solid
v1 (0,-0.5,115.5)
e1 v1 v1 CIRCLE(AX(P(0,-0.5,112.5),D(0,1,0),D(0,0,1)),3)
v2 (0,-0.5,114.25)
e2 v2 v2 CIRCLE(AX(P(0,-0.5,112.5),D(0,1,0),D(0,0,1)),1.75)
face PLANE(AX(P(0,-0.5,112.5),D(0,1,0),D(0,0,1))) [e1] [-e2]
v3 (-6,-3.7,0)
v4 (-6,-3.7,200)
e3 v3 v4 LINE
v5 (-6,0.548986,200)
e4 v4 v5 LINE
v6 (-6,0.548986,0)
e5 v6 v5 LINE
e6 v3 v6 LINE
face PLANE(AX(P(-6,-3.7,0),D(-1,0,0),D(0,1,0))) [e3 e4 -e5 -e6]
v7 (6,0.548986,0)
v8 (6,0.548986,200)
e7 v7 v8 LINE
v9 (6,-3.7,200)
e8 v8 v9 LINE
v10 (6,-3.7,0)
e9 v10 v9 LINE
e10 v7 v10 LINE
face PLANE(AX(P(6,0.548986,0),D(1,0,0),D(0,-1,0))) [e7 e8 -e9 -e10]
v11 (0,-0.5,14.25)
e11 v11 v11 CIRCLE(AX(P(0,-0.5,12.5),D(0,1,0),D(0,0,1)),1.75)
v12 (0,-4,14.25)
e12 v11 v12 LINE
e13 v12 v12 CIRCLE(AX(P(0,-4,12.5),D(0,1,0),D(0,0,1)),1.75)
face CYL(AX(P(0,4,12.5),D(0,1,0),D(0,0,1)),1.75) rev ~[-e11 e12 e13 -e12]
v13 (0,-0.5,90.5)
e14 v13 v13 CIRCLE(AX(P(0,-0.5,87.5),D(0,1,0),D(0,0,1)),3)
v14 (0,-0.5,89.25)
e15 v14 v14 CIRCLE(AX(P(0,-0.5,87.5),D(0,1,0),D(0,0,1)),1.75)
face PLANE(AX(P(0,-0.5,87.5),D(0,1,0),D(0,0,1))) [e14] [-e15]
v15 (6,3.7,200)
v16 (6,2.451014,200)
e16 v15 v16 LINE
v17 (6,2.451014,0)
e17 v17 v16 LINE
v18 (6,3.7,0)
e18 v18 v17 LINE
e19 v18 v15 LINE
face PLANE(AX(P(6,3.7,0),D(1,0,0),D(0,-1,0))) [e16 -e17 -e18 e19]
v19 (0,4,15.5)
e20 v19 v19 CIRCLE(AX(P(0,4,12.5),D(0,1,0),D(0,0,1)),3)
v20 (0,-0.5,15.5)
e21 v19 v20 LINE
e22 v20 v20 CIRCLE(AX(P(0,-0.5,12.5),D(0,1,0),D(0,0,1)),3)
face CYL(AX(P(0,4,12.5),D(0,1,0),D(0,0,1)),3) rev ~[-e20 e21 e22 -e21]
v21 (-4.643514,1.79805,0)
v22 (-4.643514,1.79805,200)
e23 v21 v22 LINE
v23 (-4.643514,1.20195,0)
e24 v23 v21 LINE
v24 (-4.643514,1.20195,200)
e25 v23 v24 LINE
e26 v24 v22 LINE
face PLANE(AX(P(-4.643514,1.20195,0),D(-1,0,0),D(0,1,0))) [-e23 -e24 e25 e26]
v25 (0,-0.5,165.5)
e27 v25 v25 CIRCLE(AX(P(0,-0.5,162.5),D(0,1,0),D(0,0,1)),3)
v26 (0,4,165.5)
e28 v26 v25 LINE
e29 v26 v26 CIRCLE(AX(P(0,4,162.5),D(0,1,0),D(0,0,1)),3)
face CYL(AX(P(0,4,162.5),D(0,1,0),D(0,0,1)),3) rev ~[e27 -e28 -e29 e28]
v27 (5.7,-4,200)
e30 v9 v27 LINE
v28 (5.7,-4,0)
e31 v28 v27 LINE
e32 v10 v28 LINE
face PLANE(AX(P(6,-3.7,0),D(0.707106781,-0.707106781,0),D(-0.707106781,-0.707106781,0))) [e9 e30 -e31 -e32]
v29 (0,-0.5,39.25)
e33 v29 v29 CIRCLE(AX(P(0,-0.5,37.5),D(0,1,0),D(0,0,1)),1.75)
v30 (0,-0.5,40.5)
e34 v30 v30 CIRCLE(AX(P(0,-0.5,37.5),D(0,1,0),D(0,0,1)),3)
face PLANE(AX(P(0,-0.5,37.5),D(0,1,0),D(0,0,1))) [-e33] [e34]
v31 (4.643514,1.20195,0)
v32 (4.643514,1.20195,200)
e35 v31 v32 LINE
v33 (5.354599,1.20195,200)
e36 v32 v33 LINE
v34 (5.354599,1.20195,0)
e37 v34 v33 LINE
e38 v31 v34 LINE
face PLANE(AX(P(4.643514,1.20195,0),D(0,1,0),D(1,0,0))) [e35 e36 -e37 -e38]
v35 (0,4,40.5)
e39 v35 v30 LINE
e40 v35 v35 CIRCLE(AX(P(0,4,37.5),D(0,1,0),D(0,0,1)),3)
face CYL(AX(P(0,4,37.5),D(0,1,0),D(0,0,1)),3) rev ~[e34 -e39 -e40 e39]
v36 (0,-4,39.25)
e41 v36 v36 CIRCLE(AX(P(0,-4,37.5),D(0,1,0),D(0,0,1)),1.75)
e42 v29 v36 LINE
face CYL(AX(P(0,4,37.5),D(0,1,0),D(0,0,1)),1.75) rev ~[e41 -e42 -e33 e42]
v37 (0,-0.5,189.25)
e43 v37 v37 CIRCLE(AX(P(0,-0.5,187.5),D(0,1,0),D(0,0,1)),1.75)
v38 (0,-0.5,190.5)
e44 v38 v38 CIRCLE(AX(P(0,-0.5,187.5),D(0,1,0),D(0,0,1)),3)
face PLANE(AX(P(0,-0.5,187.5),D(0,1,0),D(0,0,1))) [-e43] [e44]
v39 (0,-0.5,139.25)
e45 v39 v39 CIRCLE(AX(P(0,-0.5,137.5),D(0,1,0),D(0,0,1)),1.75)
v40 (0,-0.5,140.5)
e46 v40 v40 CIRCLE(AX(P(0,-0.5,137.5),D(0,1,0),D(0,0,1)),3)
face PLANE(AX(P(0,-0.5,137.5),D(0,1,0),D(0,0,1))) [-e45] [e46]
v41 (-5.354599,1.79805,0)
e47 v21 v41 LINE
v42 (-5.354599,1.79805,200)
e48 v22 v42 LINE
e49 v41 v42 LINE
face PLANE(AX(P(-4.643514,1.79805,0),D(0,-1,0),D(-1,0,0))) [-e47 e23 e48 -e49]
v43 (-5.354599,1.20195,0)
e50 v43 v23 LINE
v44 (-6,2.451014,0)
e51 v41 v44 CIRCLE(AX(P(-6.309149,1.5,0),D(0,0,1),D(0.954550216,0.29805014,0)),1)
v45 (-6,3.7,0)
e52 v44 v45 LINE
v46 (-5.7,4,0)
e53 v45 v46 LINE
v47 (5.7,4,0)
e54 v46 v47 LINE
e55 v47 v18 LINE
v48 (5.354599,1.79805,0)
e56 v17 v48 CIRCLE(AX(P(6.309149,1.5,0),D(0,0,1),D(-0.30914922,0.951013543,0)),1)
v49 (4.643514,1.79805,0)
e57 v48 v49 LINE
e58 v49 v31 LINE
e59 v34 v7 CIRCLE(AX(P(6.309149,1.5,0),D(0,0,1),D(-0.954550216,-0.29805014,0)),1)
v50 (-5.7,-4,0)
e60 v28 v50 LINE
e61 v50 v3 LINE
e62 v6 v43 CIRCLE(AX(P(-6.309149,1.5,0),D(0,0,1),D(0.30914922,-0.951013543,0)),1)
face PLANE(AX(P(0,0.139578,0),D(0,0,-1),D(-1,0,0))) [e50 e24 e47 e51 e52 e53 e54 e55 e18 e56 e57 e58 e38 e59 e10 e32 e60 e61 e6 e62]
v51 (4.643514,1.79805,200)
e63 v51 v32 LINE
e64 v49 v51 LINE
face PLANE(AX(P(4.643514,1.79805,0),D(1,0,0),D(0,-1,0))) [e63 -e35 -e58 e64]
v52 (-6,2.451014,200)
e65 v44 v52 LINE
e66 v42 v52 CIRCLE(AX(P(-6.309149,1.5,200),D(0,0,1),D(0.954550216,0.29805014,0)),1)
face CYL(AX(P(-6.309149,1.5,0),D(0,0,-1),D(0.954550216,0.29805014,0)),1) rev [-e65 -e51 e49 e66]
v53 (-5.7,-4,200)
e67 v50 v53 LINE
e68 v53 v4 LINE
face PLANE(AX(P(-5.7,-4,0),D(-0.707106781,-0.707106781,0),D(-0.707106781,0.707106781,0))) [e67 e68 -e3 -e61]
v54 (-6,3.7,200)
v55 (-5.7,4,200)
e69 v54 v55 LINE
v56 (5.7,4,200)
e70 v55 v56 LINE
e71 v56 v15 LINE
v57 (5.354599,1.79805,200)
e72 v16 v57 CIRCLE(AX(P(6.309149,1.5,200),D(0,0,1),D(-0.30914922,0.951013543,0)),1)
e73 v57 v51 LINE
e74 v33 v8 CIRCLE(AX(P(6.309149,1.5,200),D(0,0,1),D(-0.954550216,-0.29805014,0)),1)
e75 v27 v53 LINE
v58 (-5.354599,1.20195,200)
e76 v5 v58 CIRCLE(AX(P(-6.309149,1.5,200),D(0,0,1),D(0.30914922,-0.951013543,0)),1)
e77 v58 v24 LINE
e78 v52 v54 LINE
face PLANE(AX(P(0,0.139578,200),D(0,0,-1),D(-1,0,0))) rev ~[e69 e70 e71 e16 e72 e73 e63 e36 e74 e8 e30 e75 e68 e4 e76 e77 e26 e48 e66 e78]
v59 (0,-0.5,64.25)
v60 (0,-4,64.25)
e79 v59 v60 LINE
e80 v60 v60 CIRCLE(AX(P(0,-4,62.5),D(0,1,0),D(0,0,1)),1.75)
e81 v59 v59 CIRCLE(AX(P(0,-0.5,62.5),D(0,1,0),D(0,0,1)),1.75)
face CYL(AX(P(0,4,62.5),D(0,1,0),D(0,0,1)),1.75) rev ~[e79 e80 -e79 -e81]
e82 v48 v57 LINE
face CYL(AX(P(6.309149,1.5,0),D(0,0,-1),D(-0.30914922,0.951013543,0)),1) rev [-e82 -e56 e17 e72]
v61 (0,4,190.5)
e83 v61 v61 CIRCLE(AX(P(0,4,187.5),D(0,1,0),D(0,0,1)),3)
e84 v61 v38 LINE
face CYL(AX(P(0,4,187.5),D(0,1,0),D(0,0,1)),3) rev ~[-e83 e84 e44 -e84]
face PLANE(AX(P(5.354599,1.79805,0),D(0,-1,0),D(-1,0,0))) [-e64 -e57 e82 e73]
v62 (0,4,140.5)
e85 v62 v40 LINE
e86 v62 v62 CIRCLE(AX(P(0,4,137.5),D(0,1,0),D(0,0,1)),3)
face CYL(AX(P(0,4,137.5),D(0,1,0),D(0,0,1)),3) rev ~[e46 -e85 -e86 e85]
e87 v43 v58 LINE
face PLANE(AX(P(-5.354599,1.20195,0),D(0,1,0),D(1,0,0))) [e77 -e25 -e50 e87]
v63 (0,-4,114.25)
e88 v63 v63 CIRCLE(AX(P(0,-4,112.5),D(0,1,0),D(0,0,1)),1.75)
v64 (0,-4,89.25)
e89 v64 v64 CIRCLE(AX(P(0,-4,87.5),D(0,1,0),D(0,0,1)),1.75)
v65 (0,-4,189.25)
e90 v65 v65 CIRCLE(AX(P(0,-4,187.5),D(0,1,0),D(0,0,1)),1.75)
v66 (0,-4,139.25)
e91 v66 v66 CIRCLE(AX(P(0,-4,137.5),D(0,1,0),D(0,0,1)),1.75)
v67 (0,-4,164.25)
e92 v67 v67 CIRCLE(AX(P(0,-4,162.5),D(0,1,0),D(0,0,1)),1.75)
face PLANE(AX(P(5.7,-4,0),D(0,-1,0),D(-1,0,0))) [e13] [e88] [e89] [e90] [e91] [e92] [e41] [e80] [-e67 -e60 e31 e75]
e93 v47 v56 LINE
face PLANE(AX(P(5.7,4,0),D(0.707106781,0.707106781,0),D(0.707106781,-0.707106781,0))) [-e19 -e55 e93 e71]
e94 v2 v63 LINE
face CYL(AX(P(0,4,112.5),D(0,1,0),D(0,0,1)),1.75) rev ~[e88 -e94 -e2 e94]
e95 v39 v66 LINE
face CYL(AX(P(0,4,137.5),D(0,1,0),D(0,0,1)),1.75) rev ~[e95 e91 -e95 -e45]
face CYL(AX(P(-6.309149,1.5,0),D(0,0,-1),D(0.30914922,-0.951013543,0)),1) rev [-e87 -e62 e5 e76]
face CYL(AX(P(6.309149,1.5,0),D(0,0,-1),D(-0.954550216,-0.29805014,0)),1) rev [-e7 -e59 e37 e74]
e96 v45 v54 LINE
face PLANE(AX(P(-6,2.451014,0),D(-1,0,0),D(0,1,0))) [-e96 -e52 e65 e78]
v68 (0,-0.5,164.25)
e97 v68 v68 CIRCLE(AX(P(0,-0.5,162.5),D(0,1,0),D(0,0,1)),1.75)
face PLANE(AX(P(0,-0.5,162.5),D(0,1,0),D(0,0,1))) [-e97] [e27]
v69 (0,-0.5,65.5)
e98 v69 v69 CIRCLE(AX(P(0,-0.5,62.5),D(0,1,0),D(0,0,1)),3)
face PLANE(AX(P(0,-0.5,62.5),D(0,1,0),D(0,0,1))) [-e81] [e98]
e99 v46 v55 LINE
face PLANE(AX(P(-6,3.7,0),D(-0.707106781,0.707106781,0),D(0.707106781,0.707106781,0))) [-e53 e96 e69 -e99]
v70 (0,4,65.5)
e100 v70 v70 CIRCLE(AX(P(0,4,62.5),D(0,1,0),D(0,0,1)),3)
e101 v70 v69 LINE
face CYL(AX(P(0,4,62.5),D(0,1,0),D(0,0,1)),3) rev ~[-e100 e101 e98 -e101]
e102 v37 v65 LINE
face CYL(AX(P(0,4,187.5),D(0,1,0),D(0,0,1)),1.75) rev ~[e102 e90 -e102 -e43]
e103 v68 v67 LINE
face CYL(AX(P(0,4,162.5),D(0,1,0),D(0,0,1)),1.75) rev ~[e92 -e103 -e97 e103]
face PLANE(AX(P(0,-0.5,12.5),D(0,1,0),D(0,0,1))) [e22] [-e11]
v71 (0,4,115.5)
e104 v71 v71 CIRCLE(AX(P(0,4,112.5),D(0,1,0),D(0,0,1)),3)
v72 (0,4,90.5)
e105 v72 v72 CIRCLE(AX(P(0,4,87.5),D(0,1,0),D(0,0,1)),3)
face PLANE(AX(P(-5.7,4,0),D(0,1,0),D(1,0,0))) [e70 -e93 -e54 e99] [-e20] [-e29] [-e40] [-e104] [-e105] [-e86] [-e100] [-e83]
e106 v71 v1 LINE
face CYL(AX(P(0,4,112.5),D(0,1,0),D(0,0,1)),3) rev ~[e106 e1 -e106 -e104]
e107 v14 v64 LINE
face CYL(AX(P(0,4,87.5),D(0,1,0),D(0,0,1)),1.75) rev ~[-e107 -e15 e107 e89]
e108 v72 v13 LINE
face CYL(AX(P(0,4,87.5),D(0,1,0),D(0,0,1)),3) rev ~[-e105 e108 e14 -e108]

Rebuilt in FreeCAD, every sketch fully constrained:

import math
import FreeCAD as App
import Part
import Sketcher

V = App.Vector
Q = App.Units.Quantity

doc = App.newDocument("Part")
body = doc.addObject("PartDesign::Body", "Body")

sketch1 = doc.addObject("Sketcher::SketchObject", "Sketch")
body.addObject(sketch1)
sketch1.AttachmentSupport = (doc.XY_Plane, [""])
sketch1.MapMode = "FlatFace"
sketch1.addGeometry([
    Part.LineSegment(V(-5.7, 4, 0), V(-6, 3.7, 0)),
    Part.LineSegment(V(-6, 3.7, 0), V(-6, 2.45, 0)),
    Part.ArcOfCircle(Part.Circle(V(-6.31, 1.5, 0), V(0, 0, 1), 1), math.radians(17), math.radians(72)),
    Part.LineSegment(V(-5.35, 1.8, 0), V(-4.64, 1.8, 0)),
    Part.LineSegment(V(-4.64, 1.8, 0), V(-4.64, 1.2, 0)),
    Part.LineSegment(V(-4.64, 1.2, 0), V(-5.35, 1.2, 0)),
    Part.ArcOfCircle(Part.Circle(V(-6.31, 1.5, 0), V(0, 0, 1), 1), math.radians(-72), math.radians(-17)),
    Part.LineSegment(V(-6, 0.55, 0), V(-6, -3.7, 0)),
    Part.LineSegment(V(-6, -3.7, 0), V(-5.7, -4, 0)),
    Part.LineSegment(V(-5.7, -4, 0), V(5.7, -4, 0)),
    Part.LineSegment(V(5.7, -4, 0), V(6, -3.7, 0)),
    Part.LineSegment(V(6, -3.7, 0), V(6, 0.55, 0)),
    Part.ArcOfCircle(Part.Circle(V(6.31, 1.5, 0), V(0, 0, 1), 1), math.radians(-163), math.radians(-108)),
    Part.LineSegment(V(5.35, 1.2, 0), V(4.64, 1.2, 0)),
    Part.LineSegment(V(4.64, 1.2, 0), V(4.64, 1.8, 0)),
    Part.LineSegment(V(4.64, 1.8, 0), V(5.35, 1.8, 0)),
    Part.ArcOfCircle(Part.Circle(V(6.31, 1.5, 0), V(0, 0, 1), 1), math.radians(108), math.radians(163)),
    Part.LineSegment(V(6, 2.45, 0), V(6, 3.7, 0)),
    Part.LineSegment(V(6, 3.7, 0), V(5.7, 4, 0)),
    Part.LineSegment(V(5.7, 4, 0), V(-5.7, 4, 0)),
], False)
sketch1.addConstraint([
    Sketcher.Constraint("Coincident", 0, 2, 1, 1),
    Sketcher.Constraint("Coincident", 1, 2, 2, 2),
    Sketcher.Constraint("Coincident", 2, 1, 3, 1),
    Sketcher.Constraint("Coincident", 3, 2, 4, 1),
    Sketcher.Constraint("Coincident", 4, 2, 5, 1),
    Sketcher.Constraint("Coincident", 5, 2, 6, 2),
    Sketcher.Constraint("Coincident", 6, 1, 7, 1),
    Sketcher.Constraint("Coincident", 7, 2, 8, 1),
    Sketcher.Constraint("Coincident", 8, 2, 9, 1),
    Sketcher.Constraint("Coincident", 9, 2, 10, 1),
    Sketcher.Constraint("Coincident", 10, 2, 11, 1),
    Sketcher.Constraint("Coincident", 11, 2, 12, 2),
    Sketcher.Constraint("Coincident", 12, 1, 13, 1),
    Sketcher.Constraint("Coincident", 13, 2, 14, 1),
    Sketcher.Constraint("Coincident", 14, 2, 15, 1),
    Sketcher.Constraint("Coincident", 15, 2, 16, 2),
    Sketcher.Constraint("Coincident", 16, 1, 17, 1),
    Sketcher.Constraint("Coincident", 17, 2, 18, 1),
    Sketcher.Constraint("Coincident", 18, 2, 19, 1),
    Sketcher.Constraint("Coincident", 19, 2, 0, 1),
    Sketcher.Constraint("Vertical", 1),
    Sketcher.Constraint("Horizontal", 3),
    Sketcher.Constraint("Vertical", 4),
    Sketcher.Constraint("Horizontal", 5),
    Sketcher.Constraint("Vertical", 7),
    Sketcher.Constraint("Horizontal", 9),
    Sketcher.Constraint("Vertical", 11),
    Sketcher.Constraint("Horizontal", 13),
    Sketcher.Constraint("Vertical", 14),
    Sketcher.Constraint("Horizontal", 15),
    Sketcher.Constraint("Vertical", 17),
    Sketcher.Constraint("Horizontal", 19),
    Sketcher.Constraint("Coincident", 6, 3, 2, 3),
    Sketcher.Constraint("Coincident", 16, 3, 12, 3),
    Sketcher.Constraint("Equal", 2, 6),
    Sketcher.Constraint("Equal", 6, 12),
    Sketcher.Constraint("Equal", 12, 16),
    Sketcher.Constraint("Symmetric", 0, 2, 10, 2, -1, 1),
    Sketcher.Constraint("Symmetric", 7, 2, 17, 2, -1, 1),
    Sketcher.Constraint("Symmetric", 8, 2, 18, 2, -1, 1),
    Sketcher.Constraint("Symmetric", 2, 3, 12, 3, -2),
    Sketcher.Constraint("Symmetric", 7, 2, 10, 2, -2),
    Sketcher.Constraint("Symmetric", 4, 2, 13, 2, -2),
    Sketcher.Constraint("Perpendicular", 0, 8),
    Sketcher.Constraint("Perpendicular", 8, 10),
    Sketcher.Constraint("Horizontal", 3, 2, 14, 2),
    Sketcher.Constraint("Vertical", 2, 1, 5, 2),
    Sketcher.Constraint("Vertical", 9, 2, 18, 2),
    Sketcher.Constraint("Radius", 2, Q("1 mm")),
    Sketcher.Constraint("DistanceX", 9, 1, 9, 2, Q("11.4 mm")),
    Sketcher.Constraint("DistanceX", 0, 2, -1, 1, Q("6 mm")),
    Sketcher.Constraint("DistanceY", 8, 2, -1, 1, Q("4 mm")),
    Sketcher.Constraint("DistanceY", -1, 1, 2, 3, Q("1.5 mm")),
    Sketcher.Constraint("DistanceY", 4, 2, 4, 1, Q("0.5961 mm")),
    Sketcher.Constraint("DistanceX", 2, 1, -1, 1, Q("5.354599 mm")),
    Sketcher.Constraint("DistanceX", 3, 1, 3, 2, Q("0.711085 mm")),
])
pad1 = doc.addObject("PartDesign::Pad", "Pad")
body.addObject(pad1)
pad1.Profile = sketch1
pad1.Length = 200

sketch2 = doc.addObject("Sketcher::SketchObject", "Sketch001")
body.addObject(sketch2)
sketch2.AttachmentSupport = (doc.XZ_Plane, [""])
sketch2.MapMode = "FlatFace"
sketch2.AttachmentOffset = App.Placement(V(0, 0, -4), App.Rotation())
sketch2.addGeometry([
    Part.Circle(V(0, 12.5, 0), V(0, 0, 1), 3),
    Part.Circle(V(0, 12.5, 0), V(0, 0, 1), 1.8),
], False)
sketch2.addConstraint([
    Sketcher.Constraint("Coincident", 1, 3, 0, 3),
    Sketcher.Constraint("PointOnObject", 0, 3, -2),
    Sketcher.Constraint("Diameter", 0, Q("6 mm")),
    Sketcher.Constraint("Diameter", 1, Q("3.5 mm")),
    Sketcher.Constraint("DistanceY", -1, 1, 0, 3, Q("12.5 mm")),
])
pocket1 = doc.addObject("PartDesign::Pocket", "Pocket")
body.addObject(pocket1)
pocket1.Profile = sketch2
pocket1.Length = 4.5
pocket1.Reversed = True

sketch3 = doc.addObject("Sketcher::SketchObject", "Sketch002")
body.addObject(sketch3)
sketch3.AttachmentSupport = (doc.XZ_Plane, [""])
sketch3.MapMode = "FlatFace"
sketch3.AttachmentOffset = App.Placement(V(0, 0, -4), App.Rotation())
sketch3.addGeometry(Part.Circle(V(0, 12.5, 0), V(0, 0, 1), 1.8), False)
sketch3.addConstraint([
    Sketcher.Constraint("PointOnObject", 0, 3, -2),
    Sketcher.Constraint("Diameter", 0, Q("3.5 mm")),
    Sketcher.Constraint("DistanceY", -1, 1, 0, 3, Q("12.5 mm")),
])
pocket2 = doc.addObject("PartDesign::Pocket", "Pocket001")
body.addObject(pocket2)
pocket2.Profile = sketch3
pocket2.Type = "ThroughAll"
pocket2.Reversed = True
doc.recompute()

linearpattern = doc.addObject("PartDesign::LinearPattern", "LinearPattern")
body.addObject(linearpattern)
linearpattern.Originals = [pocket1, pocket2]
linearpattern.Direction = (doc.Z_Axis, [""])
linearpattern.Mode = "offset"
linearpattern.Offset = 25
linearpattern.Occurrences = 10
body.Tip = linearpattern

doc.recompute()
